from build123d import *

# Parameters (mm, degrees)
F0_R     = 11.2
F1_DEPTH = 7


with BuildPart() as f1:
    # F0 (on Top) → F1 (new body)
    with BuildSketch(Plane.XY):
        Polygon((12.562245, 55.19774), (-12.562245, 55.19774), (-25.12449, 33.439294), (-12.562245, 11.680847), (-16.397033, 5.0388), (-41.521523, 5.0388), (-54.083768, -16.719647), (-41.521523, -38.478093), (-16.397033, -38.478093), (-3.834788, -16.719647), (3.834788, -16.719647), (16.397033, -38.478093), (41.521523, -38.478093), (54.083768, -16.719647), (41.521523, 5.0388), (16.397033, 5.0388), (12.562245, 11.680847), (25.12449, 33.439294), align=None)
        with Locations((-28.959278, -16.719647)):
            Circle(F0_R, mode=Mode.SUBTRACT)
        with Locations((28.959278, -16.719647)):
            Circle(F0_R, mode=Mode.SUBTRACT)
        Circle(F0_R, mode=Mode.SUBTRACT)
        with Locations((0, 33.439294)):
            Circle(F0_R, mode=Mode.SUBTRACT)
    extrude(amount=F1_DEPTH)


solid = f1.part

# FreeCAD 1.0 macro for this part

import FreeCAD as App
import Part
import Sketcher
Q = App.Units.Quantity


def add_polygon(sketch, points):
    """Adds a closed chain of lines whose ends are joined by coincident constraints."""
    first, n = sketch.GeometryCount, len(points)
    for a, b in zip(points, points[1:] + points[:1]):
        sketch.addGeometry(Part.LineSegment(App.Vector(*a, 0), App.Vector(*b, 0)), False)
    for i in range(n):
        sketch.addConstraint(Sketcher.Constraint("Coincident", first + i, 2, first + (i + 1) % n, 1))

doc = App.newDocument("Part")
body = doc.addObject("PartDesign::Body", "Body")

sketch1 = body.newObject("Sketcher::SketchObject", "Sketch")
sketch1.AttachmentSupport = (doc.getObject("XY_Plane"), [""])
sketch1.MapMode = "FlatFace"
add_polygon(sketch1, [(13, 55), (-13, 55), (-25, 33), (-13, 12), (-16, 5), (-42, 5), (-54, -17), (-42, -38), (-16, -38), (-4, -17), (4, -17), (16, -38), (42, -38), (54, -17), (42, 5), (16, 5), (13, 12), (25, 33)])
sketch1.addGeometry(Part.Circle(App.Vector(-29, -17, 0), App.Vector(0, 0, 1), 11), False)
sketch1.addGeometry(Part.Circle(App.Vector(29, -17, 0), App.Vector(0, 0, 1), 11), False)
sketch1.addGeometry(Part.Circle(App.Vector(0, 0, 0), App.Vector(0, 0, 1), 11), False)
sketch1.addGeometry(Part.Circle(App.Vector(0, 33, 0), App.Vector(0, 0, 1), 11), False)
sketch1.addConstraint([
    Sketcher.Constraint("Horizontal", 0),
    Sketcher.Constraint("Horizontal", 4),
    Sketcher.Constraint("Horizontal", 7),
    Sketcher.Constraint("Horizontal", 9),
    Sketcher.Constraint("Horizontal", 11),
    Sketcher.Constraint("Horizontal", 14),
    Sketcher.Constraint("Coincident", 20, 3, -1, 1),
    Sketcher.Constraint("Equal", 18, 19),
    Sketcher.Constraint("Equal", 19, 20),
    Sketcher.Constraint("Equal", 20, 21),
    Sketcher.Constraint("Symmetric", 18, 3, 19, 3, -2),
    Sketcher.Constraint("Symmetric", 7, 2, 10, 2, -2),
    Sketcher.Constraint("Symmetric", 5, 2, 12, 2, -2),
    Sketcher.Constraint("Symmetric", 4, 2, 13, 2, -2),
    Sketcher.Constraint("Symmetric", 2, 2, 15, 2, -2),
    Sketcher.Constraint("Symmetric", 1, 2, 16, 2, -2),
    Sketcher.Constraint("PointOnObject", 21, 3, -2),
    Sketcher.Constraint("Parallel", 1, 3),
    Sketcher.Constraint("Parallel", 3, 5),
    Sketcher.Constraint("Parallel", 2, 6),
    Sketcher.Constraint("Parallel", 5, 8),
    Sketcher.Constraint("Parallel", 6, 10),
    Sketcher.Constraint("Parallel", 8, 12),
    Sketcher.Constraint("Parallel", 10, 13),
    Sketcher.Constraint("Parallel", 13, 15),
    Sketcher.Constraint("Parallel", 15, 17),
    Sketcher.Constraint("Horizontal", 21, 3, 1, 2),
    Sketcher.Constraint("Horizontal", 19, 3, 5, 2),
    Sketcher.Constraint("Horizontal", 5, 2, 8, 2),
    Sketcher.Constraint("Vertical", 0, 2, 2, 2),
    Sketcher.Constraint("Vertical", 4, 2, 6, 2),
    Sketcher.Constraint("Vertical", 3, 2, 7, 2),
    Sketcher.Constraint("Equal", 0, 4),
    Sketcher.Constraint("Equal", 2, 5),
    Sketcher.Constraint("Diameter", 18, Q("22.4 mm")),
    Sketcher.Constraint("Angle", 1, Q("-120.000001 deg")),
    Sketcher.Constraint("DistanceX", 0, 2, 0, 1, Q("25.12449 mm")),
    Sketcher.Constraint("DistanceY", -1, 1, 3, 2, Q("5.0388 mm")),
    Sketcher.Constraint("Distance", 1, Q("25.124489 mm")),
    Sketcher.Constraint("DistanceX", 9, 1, 9, 2, Q("7.669576 mm")),
    Sketcher.Constraint("DistanceX", 18, 3, -1, 1, Q("28.959278 mm")),
])
pad1 = body.newObject("PartDesign::Pad", "Pad")
pad1.Profile = sketch1
pad1.Length = 7

doc.recompute()
